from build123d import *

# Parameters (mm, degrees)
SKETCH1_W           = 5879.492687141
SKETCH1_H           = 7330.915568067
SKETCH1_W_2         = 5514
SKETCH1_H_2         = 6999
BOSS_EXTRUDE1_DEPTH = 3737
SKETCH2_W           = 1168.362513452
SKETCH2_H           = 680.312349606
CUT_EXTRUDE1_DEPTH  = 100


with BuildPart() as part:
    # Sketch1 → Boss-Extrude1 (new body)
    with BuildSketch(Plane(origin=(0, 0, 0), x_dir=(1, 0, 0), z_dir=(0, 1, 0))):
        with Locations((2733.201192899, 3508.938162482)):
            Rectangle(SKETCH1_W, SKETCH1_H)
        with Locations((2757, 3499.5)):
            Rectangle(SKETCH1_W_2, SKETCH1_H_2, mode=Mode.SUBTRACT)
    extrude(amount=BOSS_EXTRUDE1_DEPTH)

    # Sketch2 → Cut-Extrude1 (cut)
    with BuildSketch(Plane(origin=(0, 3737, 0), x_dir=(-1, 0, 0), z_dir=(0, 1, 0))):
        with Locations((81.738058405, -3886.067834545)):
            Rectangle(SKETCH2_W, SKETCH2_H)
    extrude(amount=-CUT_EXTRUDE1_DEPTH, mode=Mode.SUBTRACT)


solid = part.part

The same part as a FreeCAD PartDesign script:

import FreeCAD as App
import Part
import Sketcher
Q = App.Units.Quantity

doc = App.newDocument("Part")
body = doc.addObject("PartDesign::Body", "Body")

# Sketch on XZ plane
sketch1 = body.newObject("Sketcher::SketchObject", "Sketch")
sketch1.AttachmentSupport = (doc.getObject("XZ_Plane"), [""])
sketch1.MapMode = "FlatFace"
sketch1.addGeometry([
    Part.LineSegment(App.Vector(-207, -7174, 0), App.Vector(-207, 157, 0)),  # 0
    Part.LineSegment(App.Vector(-207, 157, 0), App.Vector(5673, 157, 0)),  # 1
    Part.LineSegment(App.Vector(5673, 157, 0), App.Vector(5673, -7174, 0)),  # 2
    Part.LineSegment(App.Vector(5673, -7174, 0), App.Vector(-207, -7174, 0)),  # 3
    Part.LineSegment(App.Vector(5514, 0, 0), App.Vector(0, 0, 0)),  # 4
    Part.LineSegment(App.Vector(0, 0, 0), App.Vector(0, -6999, 0)),  # 5
    Part.LineSegment(App.Vector(0, -6999, 0), App.Vector(5514, -6999, 0)),  # 6
    Part.LineSegment(App.Vector(5514, -6999, 0), App.Vector(5514, 0, 0)),  # 7
], False)
sketch1.addConstraint([
    Sketcher.Constraint("Coincident", 0, 2, 1, 1),
    Sketcher.Constraint("Coincident", 1, 2, 2, 1),
    Sketcher.Constraint("Coincident", 2, 2, 3, 1),
    Sketcher.Constraint("Coincident", 3, 2, 0, 1),
    Sketcher.Constraint("Coincident", 4, 2, 5, 1),
    Sketcher.Constraint("Coincident", 5, 2, 6, 1),
    Sketcher.Constraint("Coincident", 6, 2, 7, 1),
    Sketcher.Constraint("Coincident", 7, 2, 4, 1),
    Sketcher.Constraint("Vertical", 0),
    Sketcher.Constraint("Horizontal", 1),
    Sketcher.Constraint("Vertical", 2),
    Sketcher.Constraint("Horizontal", 3),
    Sketcher.Constraint("Horizontal", 4),
    Sketcher.Constraint("Vertical", 5),
    Sketcher.Constraint("Horizontal", 6),
    Sketcher.Constraint("Vertical", 7),
    Sketcher.Constraint("Coincident", 4, 2, -1, 1),
    Sketcher.Constraint("DistanceX", 4, 2, 4, 1, Q("5514 mm")),
    Sketcher.Constraint("DistanceY", 5, 2, 5, 1, Q("6999 mm")),
    Sketcher.Constraint("DistanceY", 0, 1, 0, 2, Q("7330.915568 mm")),
    Sketcher.Constraint("DistanceX", 1, 1, 1, 2, Q("5879.492687 mm")),
    Sketcher.Constraint("DistanceX", 0, 2, -1, 1, Q("206.545151 mm")),
    Sketcher.Constraint("DistanceY", -1, 1, 0, 2, Q("156.519622 mm")),
])
pad1 = body.newObject("PartDesign::Pad", "Pad")
pad1.Profile = sketch1
pad1.Length = 3737
pad1.Reversed = True

# Sketch on XZ plane
sketch2 = body.newObject("Sketcher::SketchObject", "Sketch001")
sketch2.AttachmentSupport = (doc.getObject("XZ_Plane"), [""])
sketch2.MapMode = "FlatFace"
sketch2.AttachmentOffset = App.Placement(App.Vector(0, 0, -3737), App.Rotation())
sketch2.addGeometry([
    Part.LineSegment(App.Vector(502, -3546, 0), App.Vector(502, -4226, 0)),
    Part.LineSegment(App.Vector(502, -4226, 0), App.Vector(-666, -4226, 0)),
    Part.LineSegment(App.Vector(-666, -4226, 0), App.Vector(-666, -3546, 0)),
    Part.LineSegment(App.Vector(-666, -3546, 0), App.Vector(502, -3546, 0)),
], False)
sketch2.addConstraint([
    Sketcher.Constraint("Coincident", 0, 2, 1, 1),
    Sketcher.Constraint("Coincident", 1, 2, 2, 1),
    Sketcher.Constraint("Coincident", 2, 2, 3, 1),
    Sketcher.Constraint("Coincident", 3, 2, 0, 1),
    Sketcher.Constraint("Vertical", 0),
    Sketcher.Constraint("Horizontal", 1),
    Sketcher.Constraint("Vertical", 2),
    Sketcher.Constraint("Horizontal", 3),
    Sketcher.Constraint("DistanceY", 0, 2, 0, 1, Q("680.31235 mm")),
    Sketcher.Constraint("DistanceX", -1, 1, 0, 2, Q("502.443198 mm")),
    Sketcher.Constraint("DistanceX", 1, 2, 1, 1, Q("1168.362513 mm")),
    Sketcher.Constraint("DistanceY", 0, 2, -1, 1, Q("4226.224009 mm")),
])
pocket1 = body.newObject("PartDesign::Pocket", "Pocket")
pocket1.Profile = sketch2
pocket1.Length = 100
pocket1.Reversed = True

doc.recompute()
